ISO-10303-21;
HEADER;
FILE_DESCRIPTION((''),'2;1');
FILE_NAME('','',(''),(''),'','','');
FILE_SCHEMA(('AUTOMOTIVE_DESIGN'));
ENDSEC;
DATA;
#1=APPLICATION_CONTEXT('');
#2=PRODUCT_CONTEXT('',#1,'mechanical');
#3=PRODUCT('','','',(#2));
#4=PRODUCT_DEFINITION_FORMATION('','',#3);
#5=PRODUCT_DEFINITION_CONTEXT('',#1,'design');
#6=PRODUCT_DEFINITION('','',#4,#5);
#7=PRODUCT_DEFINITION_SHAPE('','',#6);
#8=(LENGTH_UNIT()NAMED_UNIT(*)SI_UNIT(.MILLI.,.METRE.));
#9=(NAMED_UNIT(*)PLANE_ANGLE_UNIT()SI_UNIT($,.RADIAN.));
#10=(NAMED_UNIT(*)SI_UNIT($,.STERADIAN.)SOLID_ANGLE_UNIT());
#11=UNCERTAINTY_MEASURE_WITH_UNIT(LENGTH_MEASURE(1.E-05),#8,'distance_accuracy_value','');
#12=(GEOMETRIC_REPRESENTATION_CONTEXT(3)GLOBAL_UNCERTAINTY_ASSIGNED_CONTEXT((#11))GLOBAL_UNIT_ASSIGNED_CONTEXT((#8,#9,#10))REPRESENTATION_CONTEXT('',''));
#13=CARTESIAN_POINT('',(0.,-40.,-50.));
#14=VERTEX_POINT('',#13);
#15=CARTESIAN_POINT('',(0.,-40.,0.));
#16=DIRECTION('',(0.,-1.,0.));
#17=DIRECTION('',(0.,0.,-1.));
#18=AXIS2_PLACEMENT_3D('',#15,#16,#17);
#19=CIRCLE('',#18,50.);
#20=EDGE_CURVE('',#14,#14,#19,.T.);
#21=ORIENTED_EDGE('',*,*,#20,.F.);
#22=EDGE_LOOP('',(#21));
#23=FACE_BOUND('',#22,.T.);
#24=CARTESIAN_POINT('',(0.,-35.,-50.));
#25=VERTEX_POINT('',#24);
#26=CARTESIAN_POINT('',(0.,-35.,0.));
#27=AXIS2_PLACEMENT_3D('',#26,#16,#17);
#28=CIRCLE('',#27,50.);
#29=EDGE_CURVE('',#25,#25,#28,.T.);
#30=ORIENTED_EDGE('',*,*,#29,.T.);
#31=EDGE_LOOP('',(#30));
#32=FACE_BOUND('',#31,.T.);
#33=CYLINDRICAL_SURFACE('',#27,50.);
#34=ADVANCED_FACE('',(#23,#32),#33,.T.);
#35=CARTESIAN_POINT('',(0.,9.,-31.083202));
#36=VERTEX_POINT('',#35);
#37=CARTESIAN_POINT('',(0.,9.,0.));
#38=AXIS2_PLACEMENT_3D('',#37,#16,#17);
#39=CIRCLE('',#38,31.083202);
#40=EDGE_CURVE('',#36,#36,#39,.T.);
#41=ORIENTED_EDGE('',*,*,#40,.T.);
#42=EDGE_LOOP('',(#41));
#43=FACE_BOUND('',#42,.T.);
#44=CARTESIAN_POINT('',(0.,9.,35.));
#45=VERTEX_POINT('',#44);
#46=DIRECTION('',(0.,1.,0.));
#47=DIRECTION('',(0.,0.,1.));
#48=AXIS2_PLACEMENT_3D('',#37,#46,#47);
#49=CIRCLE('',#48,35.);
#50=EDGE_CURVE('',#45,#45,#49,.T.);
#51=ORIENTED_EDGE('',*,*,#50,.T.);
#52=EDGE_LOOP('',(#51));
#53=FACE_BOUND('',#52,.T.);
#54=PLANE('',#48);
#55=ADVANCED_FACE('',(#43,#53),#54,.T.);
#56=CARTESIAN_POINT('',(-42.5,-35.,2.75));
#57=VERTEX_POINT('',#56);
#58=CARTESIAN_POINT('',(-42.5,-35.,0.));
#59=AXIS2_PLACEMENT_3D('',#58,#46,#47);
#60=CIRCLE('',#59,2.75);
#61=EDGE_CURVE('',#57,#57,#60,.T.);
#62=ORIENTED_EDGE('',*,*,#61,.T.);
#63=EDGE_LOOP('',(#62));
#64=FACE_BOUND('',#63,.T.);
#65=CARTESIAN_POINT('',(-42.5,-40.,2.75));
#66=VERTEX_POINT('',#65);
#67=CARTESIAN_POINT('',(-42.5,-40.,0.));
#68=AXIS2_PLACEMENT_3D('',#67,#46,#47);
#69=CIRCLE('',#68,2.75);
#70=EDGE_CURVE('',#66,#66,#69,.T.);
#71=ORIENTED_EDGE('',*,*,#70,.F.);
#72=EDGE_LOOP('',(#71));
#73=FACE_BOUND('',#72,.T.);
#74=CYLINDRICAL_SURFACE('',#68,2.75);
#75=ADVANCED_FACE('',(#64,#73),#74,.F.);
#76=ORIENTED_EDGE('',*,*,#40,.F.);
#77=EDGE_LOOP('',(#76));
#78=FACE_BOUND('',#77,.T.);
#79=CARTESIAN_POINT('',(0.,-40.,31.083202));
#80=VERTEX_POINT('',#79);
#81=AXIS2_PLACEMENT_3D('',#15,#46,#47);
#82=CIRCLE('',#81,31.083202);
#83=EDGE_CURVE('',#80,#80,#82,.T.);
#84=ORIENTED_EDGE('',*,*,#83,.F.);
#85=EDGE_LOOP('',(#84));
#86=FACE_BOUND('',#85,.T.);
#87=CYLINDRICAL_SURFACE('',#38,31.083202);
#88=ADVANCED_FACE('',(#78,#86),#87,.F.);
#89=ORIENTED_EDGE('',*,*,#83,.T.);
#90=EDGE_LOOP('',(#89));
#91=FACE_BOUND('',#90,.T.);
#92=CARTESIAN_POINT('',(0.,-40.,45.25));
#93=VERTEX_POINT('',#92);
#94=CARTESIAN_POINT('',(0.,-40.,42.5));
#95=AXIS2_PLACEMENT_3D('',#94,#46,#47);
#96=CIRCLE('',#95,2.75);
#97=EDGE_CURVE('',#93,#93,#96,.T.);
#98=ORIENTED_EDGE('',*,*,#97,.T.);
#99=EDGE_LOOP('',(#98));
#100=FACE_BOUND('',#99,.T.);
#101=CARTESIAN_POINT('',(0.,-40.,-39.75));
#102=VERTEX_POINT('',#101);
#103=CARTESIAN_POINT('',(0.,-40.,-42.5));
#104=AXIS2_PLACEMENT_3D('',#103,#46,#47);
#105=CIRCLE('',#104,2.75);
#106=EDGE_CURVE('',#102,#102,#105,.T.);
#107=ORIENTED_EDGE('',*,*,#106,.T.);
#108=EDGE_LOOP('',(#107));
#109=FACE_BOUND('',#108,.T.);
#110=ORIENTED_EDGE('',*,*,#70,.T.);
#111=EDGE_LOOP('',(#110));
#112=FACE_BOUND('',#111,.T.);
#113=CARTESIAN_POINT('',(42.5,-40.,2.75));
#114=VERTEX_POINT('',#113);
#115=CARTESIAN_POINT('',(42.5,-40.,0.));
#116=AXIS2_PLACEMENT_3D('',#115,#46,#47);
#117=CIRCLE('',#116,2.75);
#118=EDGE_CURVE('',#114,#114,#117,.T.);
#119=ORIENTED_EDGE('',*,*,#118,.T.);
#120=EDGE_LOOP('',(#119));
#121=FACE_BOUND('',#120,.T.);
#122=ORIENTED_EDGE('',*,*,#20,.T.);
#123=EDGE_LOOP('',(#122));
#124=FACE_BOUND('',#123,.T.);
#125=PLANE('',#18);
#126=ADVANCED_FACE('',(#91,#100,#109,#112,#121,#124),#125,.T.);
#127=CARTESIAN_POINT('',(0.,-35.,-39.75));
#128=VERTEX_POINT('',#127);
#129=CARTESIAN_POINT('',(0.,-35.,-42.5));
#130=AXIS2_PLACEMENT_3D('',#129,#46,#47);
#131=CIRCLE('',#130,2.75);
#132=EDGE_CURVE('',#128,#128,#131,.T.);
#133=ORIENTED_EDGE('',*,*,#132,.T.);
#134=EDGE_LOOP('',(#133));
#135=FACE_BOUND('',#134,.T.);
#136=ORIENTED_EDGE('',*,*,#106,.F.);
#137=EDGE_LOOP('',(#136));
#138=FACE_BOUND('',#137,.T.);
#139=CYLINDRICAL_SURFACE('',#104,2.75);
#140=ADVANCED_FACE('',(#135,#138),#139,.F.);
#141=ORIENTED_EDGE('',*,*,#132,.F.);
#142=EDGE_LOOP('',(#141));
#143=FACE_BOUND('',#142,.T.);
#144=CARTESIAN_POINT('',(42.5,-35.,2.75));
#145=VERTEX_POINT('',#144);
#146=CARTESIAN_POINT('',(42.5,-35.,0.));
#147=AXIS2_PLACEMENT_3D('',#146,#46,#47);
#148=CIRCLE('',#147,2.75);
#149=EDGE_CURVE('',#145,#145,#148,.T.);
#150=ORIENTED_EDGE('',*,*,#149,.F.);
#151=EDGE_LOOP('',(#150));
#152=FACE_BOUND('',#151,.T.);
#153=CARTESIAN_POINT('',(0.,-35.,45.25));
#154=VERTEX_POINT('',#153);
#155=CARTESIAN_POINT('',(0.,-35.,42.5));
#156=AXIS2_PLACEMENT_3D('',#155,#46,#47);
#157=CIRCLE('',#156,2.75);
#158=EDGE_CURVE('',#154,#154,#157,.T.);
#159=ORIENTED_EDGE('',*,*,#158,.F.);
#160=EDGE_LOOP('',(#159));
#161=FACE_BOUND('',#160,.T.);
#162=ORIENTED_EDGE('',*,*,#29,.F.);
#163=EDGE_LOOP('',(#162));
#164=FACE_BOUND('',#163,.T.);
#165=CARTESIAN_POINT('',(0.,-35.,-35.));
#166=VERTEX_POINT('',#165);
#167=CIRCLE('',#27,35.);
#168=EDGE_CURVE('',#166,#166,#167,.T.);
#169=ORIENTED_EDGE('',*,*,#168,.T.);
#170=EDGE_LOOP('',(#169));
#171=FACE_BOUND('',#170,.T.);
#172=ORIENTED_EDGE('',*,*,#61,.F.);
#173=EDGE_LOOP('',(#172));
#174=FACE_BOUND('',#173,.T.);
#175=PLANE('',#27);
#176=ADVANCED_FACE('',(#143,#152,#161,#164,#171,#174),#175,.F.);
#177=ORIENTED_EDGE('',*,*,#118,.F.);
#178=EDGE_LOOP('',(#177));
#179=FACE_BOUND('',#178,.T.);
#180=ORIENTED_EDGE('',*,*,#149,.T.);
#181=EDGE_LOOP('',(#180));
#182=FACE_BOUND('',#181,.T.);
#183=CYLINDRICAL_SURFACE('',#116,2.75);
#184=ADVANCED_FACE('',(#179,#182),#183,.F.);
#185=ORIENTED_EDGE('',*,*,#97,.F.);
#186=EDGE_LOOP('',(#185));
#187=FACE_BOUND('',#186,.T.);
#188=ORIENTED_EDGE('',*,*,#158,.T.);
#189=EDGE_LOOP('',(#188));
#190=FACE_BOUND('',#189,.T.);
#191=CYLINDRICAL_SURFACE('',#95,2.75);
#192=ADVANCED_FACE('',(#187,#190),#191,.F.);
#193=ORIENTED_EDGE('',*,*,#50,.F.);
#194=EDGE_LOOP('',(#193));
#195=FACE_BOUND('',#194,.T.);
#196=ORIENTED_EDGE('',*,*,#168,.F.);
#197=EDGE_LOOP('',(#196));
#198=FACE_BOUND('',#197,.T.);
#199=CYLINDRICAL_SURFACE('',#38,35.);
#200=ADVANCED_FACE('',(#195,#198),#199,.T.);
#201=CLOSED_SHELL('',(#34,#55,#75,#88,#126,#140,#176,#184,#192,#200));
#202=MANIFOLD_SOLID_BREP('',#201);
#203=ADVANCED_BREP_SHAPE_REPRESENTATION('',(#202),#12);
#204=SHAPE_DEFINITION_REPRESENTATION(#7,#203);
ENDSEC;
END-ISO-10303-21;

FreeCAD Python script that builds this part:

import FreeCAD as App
import Part
import Sketcher
Q = App.Units.Quantity

doc = App.newDocument("Part")
params = doc.addObject("Spreadsheet::Sheet", "Params")
for row, (alias, value) in enumerate([
    ("sketch1_diameter", "70 mm"),
    ("pad1_length", "9 mm"),
    ("pocket1_length", "9 mm"),
    ("sketch3_diameter", "70 mm"),
    ("pad2_length", "40 mm"),
    ("sketch4_diameter", "100 mm"),
    ("pad3_length", "5 mm"),
    ("sketch5_diameter", "5.5 mm"),
    ("pocket2_length", "5 mm"),
    ("pocket3_length", "5 mm"),
], start=1):
    params.set(f"A{row}", alias)
    params.set(f"B{row}", "=" + value)
    params.setAlias(f"B{row}", alias)

body = doc.addObject("PartDesign::Body", "Body")

sketch1 = body.newObject("Sketcher::SketchObject", "Sketch")
sketch1.AttachmentSupport = (doc.getObject("XZ_Plane"), [""])
sketch1.MapMode = "FlatFace"
sketch1.addGeometry(Part.Circle(App.Vector(0, 0, 0), App.Vector(0, 0, 1), 35), False)
sketch1.addConstraint([
    Sketcher.Constraint("Coincident", 0, 3, -1, 1),
    Sketcher.Constraint("Diameter", 0, Q("70 mm")),
])
sketch1.setExpression("Constraints[1]", "Params.sketch1_diameter")
pad1 = body.newObject("PartDesign::Pad", "Pad")
pad1.Profile = sketch1
pad1.setExpression("Length", "Params.pad1_length")
pad1.Reversed = True

sketch2 = body.newObject("Sketcher::SketchObject", "Sketch001")
sketch2.AttachmentSupport = (doc.getObject("XZ_Plane"), [""])
sketch2.MapMode = "FlatFace"
sketch2.addGeometry(Part.Circle(App.Vector(0, 0, 0), App.Vector(0, 0, 1), 31), False)
sketch2.addConstraint([
    Sketcher.Constraint("Coincident", 0, 3, -1, 1),
    Sketcher.Constraint("Diameter", 0, Q("62.166403 mm")),
])
pocket1 = body.newObject("PartDesign::Pocket", "Pocket")
pocket1.Profile = sketch2
pocket1.setExpression("Length", "Params.pocket1_length")

sketch3 = body.newObject("Sketcher::SketchObject", "Sketch002")
sketch3.AttachmentSupport = (doc.getObject("XZ_Plane"), [""])
sketch3.MapMode = "FlatFace"
sketch3.AttachmentOffset = App.Placement(App.Vector(0, 0, 40), App.Rotation())
sketch3.addGeometry([
    Part.Circle(App.Vector(0, 0, 0), App.Vector(0, 0, 1), 35),
    Part.Circle(App.Vector(0, 0, 0), App.Vector(0, 0, 1), 31),
], False)
sketch3.addConstraint([
    Sketcher.Constraint("Coincident", 0, 3, -1, 1),
    Sketcher.Constraint("Coincident", 1, 3, -1, 1),
    Sketcher.Constraint("Diameter", 0, Q("70 mm")),
    Sketcher.Constraint("Diameter", 1, Q("62.166403 mm")),
])
sketch3.setExpression("Constraints[2]", "Params.sketch3_diameter")
pad2 = body.newObject("PartDesign::Pad", "Pad001")
pad2.Profile = sketch3
pad2.setExpression("Length", "Params.pad2_length")
pad2.Reversed = True

sketch4 = body.newObject("Sketcher::SketchObject", "Sketch003")
sketch4.AttachmentSupport = (doc.getObject("XZ_Plane"), [""])
sketch4.MapMode = "FlatFace"
sketch4.AttachmentOffset = App.Placement(App.Vector(0, 0, 40), App.Rotation())
sketch4.addGeometry(Part.Circle(App.Vector(0, 0, 0), App.Vector(0, 0, 1), 50), False)
sketch4.addConstraint([
    Sketcher.Constraint("Coincident", 0, 3, -1, 1),
    Sketcher.Constraint("Diameter", 0, Q("100 mm")),
])
sketch4.setExpression("Constraints[1]", "Params.sketch4_diameter")
pad3 = body.newObject("PartDesign::Pad", "Pad002")
pad3.Profile = sketch4
pad3.setExpression("Length", "Params.pad3_length")
pad3.Reversed = True

sketch5 = body.newObject("Sketcher::SketchObject", "Sketch004")
sketch5.AttachmentSupport = (doc.getObject("XZ_Plane"), [""])
sketch5.MapMode = "FlatFace"
sketch5.AttachmentOffset = App.Placement(App.Vector(0, 0, 35), App.Rotation())
sketch5.addGeometry([
    Part.Circle(App.Vector(0, -42.5, 0), App.Vector(0, 0, 1), 2.8),
    Part.Circle(App.Vector(42.5, 0, 0), App.Vector(0, 0, 1), 2.8),
    Part.Circle(App.Vector(0, 42.5, 0), App.Vector(0, 0, 1), 2.8),
    Part.Circle(App.Vector(-42.5, 0, 0), App.Vector(0, 0, 1), 2.8),
], False)
sketch5.addConstraint([
    Sketcher.Constraint("Equal", 0, 1),
    Sketcher.Constraint("Equal", 1, 2),
    Sketcher.Constraint("Equal", 2, 3),
    Sketcher.Constraint("Symmetric", 0, 3, 2, 3, -1, 1),
    Sketcher.Constraint("Symmetric", 1, 3, 3, 3, -1, 1),
    Sketcher.Constraint("PointOnObject", 0, 3, -2),
    Sketcher.Constraint("PointOnObject", 1, 3, -1),
    Sketcher.Constraint("Diameter", 0, Q("5.5 mm")),
    Sketcher.Constraint("DistanceY", 0, 3, 2, 3, Q("85 mm")),
    Sketcher.Constraint("DistanceX", 3, 3, 1, 3, Q("85 mm")),
])
sketch5.setExpression("Constraints[7]", "Params.sketch5_diameter")
pocket2 = body.newObject("PartDesign::Pocket", "Pocket001")
pocket2.Profile = sketch5
pocket2.setExpression("Length", "Params.pocket2_length")
pocket2.Reversed = True

sketch6 = body.newObject("Sketcher::SketchObject", "Sketch005")
sketch6.AttachmentSupport = (doc.getObject("XZ_Plane"), [""])
sketch6.MapMode = "FlatFace"
sketch6.AttachmentOffset = App.Placement(App.Vector(0, 0, 40), App.Rotation())
sketch6.addGeometry(Part.Circle(App.Vector(0, 0, 0), App.Vector(0, 0, 1), 31), False)
sketch6.addConstraint([
    Sketcher.Constraint("Coincident", 0, 3, -1, 1),
    Sketcher.Constraint("Diameter", 0, Q("62.166403 mm")),
])
pocket3 = body.newObject("PartDesign::Pocket", "Pocket002")
pocket3.Profile = sketch6
pocket3.setExpression("Length", "Params.pocket3_length")

doc.recompute()
